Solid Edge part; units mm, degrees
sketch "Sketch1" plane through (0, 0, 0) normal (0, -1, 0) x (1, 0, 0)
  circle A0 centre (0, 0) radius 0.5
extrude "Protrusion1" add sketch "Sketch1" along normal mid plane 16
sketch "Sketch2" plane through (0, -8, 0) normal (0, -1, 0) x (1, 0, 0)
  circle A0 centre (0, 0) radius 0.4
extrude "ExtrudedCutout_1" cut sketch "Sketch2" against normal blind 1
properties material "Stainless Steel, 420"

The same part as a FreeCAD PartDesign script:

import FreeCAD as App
import Part
import Sketcher
from FreeCAD import Vector
Q = App.Units.Quantity

doc = App.newDocument("Part")
params = doc.addObject("Spreadsheet::Sheet", "Params")
for row, (alias, value) in enumerate([
    ("sketch1_diameter", "1 mm"),
    ("pad1_length", "16 mm"),
    ("sketch2_diameter", "0.8 mm"),
    ("pocket1_length", "1 mm"),
], start=1):
    params.set(f"A{row}", alias)
    params.set(f"B{row}", "=" + value)
    params.setAlias(f"B{row}", alias)

body = doc.addObject("PartDesign::Body", "Body")

sketch1 = doc.addObject("Sketcher::SketchObject", "Sketch")
body.addObject(sketch1)
sketch1.AttachmentSupport = (doc.XZ_Plane, [""])
sketch1.MapMode = "FlatFace"
sketch1.addGeometry(Part.Circle(Vector(0, 0, 0), Vector(0, 0, 1), 0.5), False)
sketch1.addConstraint([
    Sketcher.Constraint("Coincident", 0, 3, -1, 1),
    Sketcher.Constraint("Diameter", 0, Q("1 mm")),
])
sketch1.setExpression("Constraints[1]", "Params.sketch1_diameter")
pad1 = doc.addObject("PartDesign::Pad", "Pad")
body.addObject(pad1)
pad1.Profile = sketch1
pad1.setExpression("Length", "Params.pad1_length")
pad1.Midplane = True

sketch2 = doc.addObject("Sketcher::SketchObject", "Sketch001")
body.addObject(sketch2)
sketch2.AttachmentSupport = (doc.XZ_Plane, [""])
sketch2.MapMode = "FlatFace"
sketch2.AttachmentOffset = App.Placement(Vector(0, 0, 8), App.Rotation())
sketch2.addGeometry(Part.Circle(Vector(0, 0, 0), Vector(0, 0, 1), 0.4), False)
sketch2.addConstraint([
    Sketcher.Constraint("Coincident", 0, 3, -1, 1),
    Sketcher.Constraint("Diameter", 0, Q("0.8 mm")),
])
sketch2.setExpression("Constraints[1]", "Params.sketch2_diameter")
pocket1 = doc.addObject("PartDesign::Pocket", "Pocket")
body.addObject(pocket1)
pocket1.Profile = sketch2
pocket1.setExpression("Length", "Params.pocket1_length")

doc.recompute()
